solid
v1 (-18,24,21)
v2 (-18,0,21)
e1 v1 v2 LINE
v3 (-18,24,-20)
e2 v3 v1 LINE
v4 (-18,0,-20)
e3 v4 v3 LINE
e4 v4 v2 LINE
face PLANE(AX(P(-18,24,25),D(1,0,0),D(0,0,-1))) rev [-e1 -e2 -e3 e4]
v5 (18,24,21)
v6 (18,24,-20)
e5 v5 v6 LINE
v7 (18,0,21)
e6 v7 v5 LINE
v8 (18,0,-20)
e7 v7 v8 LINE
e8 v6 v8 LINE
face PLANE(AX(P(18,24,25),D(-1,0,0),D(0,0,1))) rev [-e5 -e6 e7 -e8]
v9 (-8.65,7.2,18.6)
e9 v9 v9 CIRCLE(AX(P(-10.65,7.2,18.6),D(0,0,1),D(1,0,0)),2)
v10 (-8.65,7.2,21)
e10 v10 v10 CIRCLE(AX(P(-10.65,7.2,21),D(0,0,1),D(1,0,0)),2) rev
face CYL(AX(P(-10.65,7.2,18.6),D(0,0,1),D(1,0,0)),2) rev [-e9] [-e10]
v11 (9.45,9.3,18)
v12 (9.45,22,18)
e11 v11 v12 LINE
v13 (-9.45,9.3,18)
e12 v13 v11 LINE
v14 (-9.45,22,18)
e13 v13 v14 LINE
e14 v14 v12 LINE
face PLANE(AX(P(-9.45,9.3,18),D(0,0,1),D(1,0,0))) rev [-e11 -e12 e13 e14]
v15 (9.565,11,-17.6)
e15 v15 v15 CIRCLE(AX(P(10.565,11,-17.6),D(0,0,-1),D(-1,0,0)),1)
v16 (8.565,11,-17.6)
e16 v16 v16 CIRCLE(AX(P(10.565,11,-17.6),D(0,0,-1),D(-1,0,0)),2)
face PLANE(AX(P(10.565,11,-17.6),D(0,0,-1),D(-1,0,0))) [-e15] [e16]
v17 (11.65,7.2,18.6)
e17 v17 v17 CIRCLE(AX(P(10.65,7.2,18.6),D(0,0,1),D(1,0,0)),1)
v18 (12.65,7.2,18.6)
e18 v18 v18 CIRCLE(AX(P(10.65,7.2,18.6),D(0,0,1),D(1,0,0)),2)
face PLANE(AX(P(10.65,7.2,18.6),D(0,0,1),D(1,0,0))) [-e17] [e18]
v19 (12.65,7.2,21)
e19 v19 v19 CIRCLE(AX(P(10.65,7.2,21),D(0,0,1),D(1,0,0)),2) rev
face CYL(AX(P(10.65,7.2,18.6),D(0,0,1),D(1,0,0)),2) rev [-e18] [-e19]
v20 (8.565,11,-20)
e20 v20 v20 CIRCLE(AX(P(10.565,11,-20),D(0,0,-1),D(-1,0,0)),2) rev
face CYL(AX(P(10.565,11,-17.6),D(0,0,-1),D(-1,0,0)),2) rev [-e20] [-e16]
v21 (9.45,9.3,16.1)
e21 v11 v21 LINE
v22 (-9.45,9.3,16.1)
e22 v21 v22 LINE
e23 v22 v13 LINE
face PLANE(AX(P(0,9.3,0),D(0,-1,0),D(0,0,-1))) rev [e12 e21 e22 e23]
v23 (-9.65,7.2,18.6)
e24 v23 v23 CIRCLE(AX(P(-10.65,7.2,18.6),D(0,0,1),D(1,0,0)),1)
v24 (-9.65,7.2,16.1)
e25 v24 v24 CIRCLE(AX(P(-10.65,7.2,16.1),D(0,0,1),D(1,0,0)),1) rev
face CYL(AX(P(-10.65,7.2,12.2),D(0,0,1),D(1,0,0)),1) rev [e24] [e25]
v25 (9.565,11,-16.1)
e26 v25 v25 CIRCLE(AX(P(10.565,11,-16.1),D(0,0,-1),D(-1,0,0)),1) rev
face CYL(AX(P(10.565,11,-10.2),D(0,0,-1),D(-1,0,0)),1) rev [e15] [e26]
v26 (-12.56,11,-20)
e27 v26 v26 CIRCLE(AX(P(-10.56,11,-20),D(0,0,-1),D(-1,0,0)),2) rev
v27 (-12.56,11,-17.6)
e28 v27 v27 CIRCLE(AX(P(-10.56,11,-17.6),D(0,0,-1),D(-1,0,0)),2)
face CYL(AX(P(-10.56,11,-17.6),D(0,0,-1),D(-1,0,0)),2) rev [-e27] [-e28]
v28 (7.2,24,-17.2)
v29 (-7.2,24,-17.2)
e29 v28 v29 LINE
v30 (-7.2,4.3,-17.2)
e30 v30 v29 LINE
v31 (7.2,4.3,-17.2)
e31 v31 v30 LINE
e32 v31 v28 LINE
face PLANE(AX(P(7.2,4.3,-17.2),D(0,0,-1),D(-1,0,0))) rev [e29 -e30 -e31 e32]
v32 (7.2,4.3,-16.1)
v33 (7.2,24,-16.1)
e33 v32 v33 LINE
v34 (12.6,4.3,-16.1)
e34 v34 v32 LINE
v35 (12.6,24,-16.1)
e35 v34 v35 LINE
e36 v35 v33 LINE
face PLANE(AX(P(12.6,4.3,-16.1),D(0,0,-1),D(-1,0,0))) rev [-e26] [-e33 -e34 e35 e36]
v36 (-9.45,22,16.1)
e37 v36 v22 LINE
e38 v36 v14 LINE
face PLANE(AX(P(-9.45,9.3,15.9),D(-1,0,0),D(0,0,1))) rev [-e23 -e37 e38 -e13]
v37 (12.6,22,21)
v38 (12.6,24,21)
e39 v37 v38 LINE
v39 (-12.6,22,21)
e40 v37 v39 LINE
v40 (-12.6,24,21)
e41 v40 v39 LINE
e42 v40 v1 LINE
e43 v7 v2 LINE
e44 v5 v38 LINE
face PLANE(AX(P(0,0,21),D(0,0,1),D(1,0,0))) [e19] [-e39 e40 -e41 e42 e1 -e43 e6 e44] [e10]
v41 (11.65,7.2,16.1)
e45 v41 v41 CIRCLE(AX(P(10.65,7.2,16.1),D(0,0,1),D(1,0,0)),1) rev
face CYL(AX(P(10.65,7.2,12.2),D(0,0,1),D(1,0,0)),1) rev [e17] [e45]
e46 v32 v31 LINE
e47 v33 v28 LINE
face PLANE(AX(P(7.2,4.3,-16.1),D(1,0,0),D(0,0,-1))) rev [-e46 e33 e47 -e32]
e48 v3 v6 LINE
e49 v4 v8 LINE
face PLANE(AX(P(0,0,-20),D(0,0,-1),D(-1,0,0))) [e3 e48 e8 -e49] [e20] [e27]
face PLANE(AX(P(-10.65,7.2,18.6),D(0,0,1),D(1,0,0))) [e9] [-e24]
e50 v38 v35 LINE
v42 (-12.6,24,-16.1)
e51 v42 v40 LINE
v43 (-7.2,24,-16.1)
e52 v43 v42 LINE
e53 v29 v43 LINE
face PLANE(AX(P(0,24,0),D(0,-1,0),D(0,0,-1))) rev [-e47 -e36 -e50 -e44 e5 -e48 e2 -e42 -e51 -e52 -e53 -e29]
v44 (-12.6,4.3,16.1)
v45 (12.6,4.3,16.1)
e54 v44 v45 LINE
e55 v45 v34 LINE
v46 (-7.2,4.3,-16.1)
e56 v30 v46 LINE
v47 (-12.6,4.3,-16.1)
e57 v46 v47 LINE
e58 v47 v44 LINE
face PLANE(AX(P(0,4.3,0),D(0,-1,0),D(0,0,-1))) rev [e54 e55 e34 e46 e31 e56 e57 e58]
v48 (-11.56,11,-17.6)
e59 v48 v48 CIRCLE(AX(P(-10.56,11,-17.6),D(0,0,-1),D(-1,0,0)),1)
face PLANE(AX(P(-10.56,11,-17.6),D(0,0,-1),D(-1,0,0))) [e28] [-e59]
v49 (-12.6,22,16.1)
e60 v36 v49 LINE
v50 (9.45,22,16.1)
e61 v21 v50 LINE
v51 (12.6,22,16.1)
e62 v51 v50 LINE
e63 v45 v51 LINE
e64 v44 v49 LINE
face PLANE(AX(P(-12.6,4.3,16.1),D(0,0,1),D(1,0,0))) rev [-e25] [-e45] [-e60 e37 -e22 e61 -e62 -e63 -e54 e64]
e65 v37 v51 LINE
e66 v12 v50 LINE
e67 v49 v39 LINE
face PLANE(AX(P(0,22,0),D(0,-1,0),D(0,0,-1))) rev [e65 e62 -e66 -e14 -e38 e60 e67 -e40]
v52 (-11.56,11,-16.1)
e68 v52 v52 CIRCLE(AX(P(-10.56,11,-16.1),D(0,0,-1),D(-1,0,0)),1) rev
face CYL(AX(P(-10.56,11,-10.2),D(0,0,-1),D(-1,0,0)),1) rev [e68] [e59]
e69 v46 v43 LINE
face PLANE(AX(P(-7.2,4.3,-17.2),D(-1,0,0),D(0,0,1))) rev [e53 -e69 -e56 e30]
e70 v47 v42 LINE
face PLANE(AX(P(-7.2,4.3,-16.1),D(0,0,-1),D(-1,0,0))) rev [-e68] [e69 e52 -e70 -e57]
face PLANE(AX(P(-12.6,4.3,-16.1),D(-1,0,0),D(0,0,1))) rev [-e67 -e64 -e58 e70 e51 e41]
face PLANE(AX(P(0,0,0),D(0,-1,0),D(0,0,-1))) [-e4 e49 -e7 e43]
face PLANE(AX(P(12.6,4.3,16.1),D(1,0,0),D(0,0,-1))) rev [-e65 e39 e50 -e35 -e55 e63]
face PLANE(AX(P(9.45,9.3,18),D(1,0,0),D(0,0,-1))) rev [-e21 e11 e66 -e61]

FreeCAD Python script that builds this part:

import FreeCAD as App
import Part
import Sketcher

V = App.Vector
Q = App.Units.Quantity

doc = App.newDocument("Part")
params = doc.addObject("Spreadsheet::Sheet", "Params")
for row, (alias, value) in enumerate([
    ("sketch1_width", "36 mm"),
    ("sketch1_height", "50 mm"),
    ("pad1_length", "24 mm"),
    ("sketch2_width", "24.8 mm"),
    ("sketch2_height", "31.8 mm"),
    ("pocket1_length", "19.7 mm"),
    ("sketch3_width", "14 mm"),
    ("sketch3_height", "2.2 mm"),
    ("pocket2_length", "19.7 mm"),
    ("sketch4_width", "18.5 mm"),
    ("sketch4_height", "3.8 mm"),
    ("pocket3_length", "14.7 mm"),
    ("sketch5_width", "24.8 mm"),
    ("pocket4_length", "2 mm"),
    ("sketch6_diameter", "4 mm"),
    ("pocket5_length", "6.4 mm"),
    ("sketch7_diameter", "2 mm"),
    ("pocket6_length", "6.4 mm"),
    ("sketch8_diameter", "4 mm"),
    ("pocket7_length", "7.4 mm"),
    ("sketch9_diameter", "2 mm"),
    ("pocket8_length", "7.4 mm"),
    ("pocket9_length", "4 mm"),
    ("pocket10_length", "5 mm"),
    ("sketch12_width", "25.2 mm"),
    ("sketch12_width2", "5.4 mm"),
    ("sketch12_height", "32.2 mm"),
    ("sketch12_height2", "1.1 mm"),
    ("pocket11_length", "19.7 mm"),
    ("sketch13_width", "18.9 mm"),
    ("sketch13_height", "2.1 mm"),
    ("pocket12_length", "12.7 mm"),
    ("sketch14_width", "25.2 mm"),
    ("pocket13_length", "2 mm"),
], start=1):
    params.set(f"A{row}", alias)
    params.set(f"B{row}", "=" + value)
    params.setAlias(f"B{row}", alias)

body = doc.addObject("PartDesign::Body", "Body")

# Sketch on XZ plane
sketch1 = body.newObject("Sketcher::SketchObject", "Sketch")
sketch1.AttachmentSupport = (doc.getObject("XZ_Plane"), [""])
sketch1.MapMode = "FlatFace"
sketch1.addGeometry(Part.LineSegment(V(-18, -25, 0), V(-18, 25, 0)), False)
sketch1.addGeometry(Part.LineSegment(V(-18, 25, 0), V(18, 25, 0)), False)
sketch1.addGeometry(Part.LineSegment(V(18, 25, 0), V(18, -25, 0)), False)
sketch1.addGeometry(Part.LineSegment(V(18, -25, 0), V(-18, -25, 0)), False)
sketch1.addConstraint(Sketcher.Constraint("Coincident", 0, 2, 1, 1))
sketch1.addConstraint(Sketcher.Constraint("Coincident", 1, 2, 2, 1))
sketch1.addConstraint(Sketcher.Constraint("Coincident", 2, 2, 3, 1))
sketch1.addConstraint(Sketcher.Constraint("Coincident", 3, 2, 0, 1))
sketch1.addConstraint(Sketcher.Constraint("Vertical", 0))
sketch1.addConstraint(Sketcher.Constraint("Horizontal", 1))
sketch1.addConstraint(Sketcher.Constraint("Vertical", 2))
sketch1.addConstraint(Sketcher.Constraint("Horizontal", 3))
sketch1.addConstraint(Sketcher.Constraint("Symmetric", 0, 2, 2, 2, -1, 1))
sketch1.addConstraint(Sketcher.Constraint("DistanceX", 1, 1, 1, 2, Q("36 mm")))
sketch1.addConstraint(Sketcher.Constraint("DistanceY", 0, 1, 0, 2, Q("50 mm")))
sketch1.setExpression("Constraints[9]", "Params.sketch1_width")
sketch1.setExpression("Constraints[10]", "Params.sketch1_height")
pad1 = body.newObject("PartDesign::Pad", "Pad")
pad1.Profile = sketch1
pad1.setExpression("Length", "Params.pad1_length")
pad1.Reversed = True

# Sketch on XZ plane
sketch2 = body.newObject("Sketcher::SketchObject", "Sketch001")
sketch2.AttachmentSupport = (doc.getObject("XZ_Plane"), [""])
sketch2.MapMode = "FlatFace"
sketch2.AttachmentOffset = App.Placement(V(0, 0, -24), App.Rotation())
sketch2.addGeometry(Part.LineSegment(V(-12, -16, 0), V(-12, 16, 0)), False)
sketch2.addGeometry(Part.LineSegment(V(-12, 16, 0), V(12, 16, 0)), False)
sketch2.addGeometry(Part.LineSegment(V(12, 16, 0), V(12, -16, 0)), False)
sketch2.addGeometry(Part.LineSegment(V(12, -16, 0), V(-12, -16, 0)), False)
sketch2.addConstraint(Sketcher.Constraint("Coincident", 0, 2, 1, 1))
sketch2.addConstraint(Sketcher.Constraint("Coincident", 1, 2, 2, 1))
sketch2.addConstraint(Sketcher.Constraint("Coincident", 2, 2, 3, 1))
sketch2.addConstraint(Sketcher.Constraint("Coincident", 3, 2, 0, 1))
sketch2.addConstraint(Sketcher.Constraint("Vertical", 0))
sketch2.addConstraint(Sketcher.Constraint("Horizontal", 1))
sketch2.addConstraint(Sketcher.Constraint("Vertical", 2))
sketch2.addConstraint(Sketcher.Constraint("Horizontal", 3))
sketch2.addConstraint(Sketcher.Constraint("Symmetric", 0, 2, 2, 2, -1, 1))
sketch2.addConstraint(Sketcher.Constraint("DistanceX", 1, 1, 1, 2, Q("24.8 mm")))
sketch2.addConstraint(Sketcher.Constraint("DistanceY", 0, 1, 0, 2, Q("31.8 mm")))
sketch2.setExpression("Constraints[9]", "Params.sketch2_width")
sketch2.setExpression("Constraints[10]", "Params.sketch2_height")
pocket1 = body.newObject("PartDesign::Pocket", "Pocket")
pocket1.Profile = sketch2
pocket1.setExpression("Length", "Params.pocket1_length")
pocket1.Reversed = True

# Sketch on XZ plane
sketch3 = body.newObject("Sketcher::SketchObject", "Sketch002")
sketch3.AttachmentSupport = (doc.getObject("XZ_Plane"), [""])
sketch3.MapMode = "FlatFace"
sketch3.AttachmentOffset = App.Placement(V(0, 0, -24), App.Rotation())
sketch3.addGeometry(Part.LineSegment(V(-7, -17, 0), V(-7, -14.8, 0)), False)
sketch3.addGeometry(Part.LineSegment(V(-7, -14.8, 0), V(7, -14.8, 0)), False)
sketch3.addGeometry(Part.LineSegment(V(7, -14.8, 0), V(7, -17, 0)), False)
sketch3.addGeometry(Part.LineSegment(V(7, -17, 0), V(-7, -17, 0)), False)
sketch3.addConstraint(Sketcher.Constraint("Coincident", 0, 2, 1, 1))
sketch3.addConstraint(Sketcher.Constraint("Coincident", 1, 2, 2, 1))
sketch3.addConstraint(Sketcher.Constraint("Coincident", 2, 2, 3, 1))
sketch3.addConstraint(Sketcher.Constraint("Coincident", 3, 2, 0, 1))
sketch3.addConstraint(Sketcher.Constraint("Vertical", 0))
sketch3.addConstraint(Sketcher.Constraint("Horizontal", 1))
sketch3.addConstraint(Sketcher.Constraint("Vertical", 2))
sketch3.addConstraint(Sketcher.Constraint("Horizontal", 3))
sketch3.addConstraint(Sketcher.Constraint("DistanceX", 1, 1, 1, 2, Q("14 mm")))
sketch3.addConstraint(Sketcher.Constraint("DistanceY", 0, 1, 0, 2, Q("2.2 mm")))
sketch3.addConstraint(Sketcher.Constraint("DistanceX", 0, 2, -1, 1, Q("7 mm")))
sketch3.addConstraint(Sketcher.Constraint("DistanceY", 2, 2, -1, 1, Q("17 mm")))
sketch3.setExpression("Constraints[8]", "Params.sketch3_width")
sketch3.setExpression("Constraints[9]", "Params.sketch3_height")
pocket2 = body.newObject("PartDesign::Pocket", "Pocket001")
pocket2.Profile = sketch3
pocket2.setExpression("Length", "Params.pocket2_length")
pocket2.Reversed = True

# Sketch on XZ plane
sketch4 = body.newObject("Sketcher::SketchObject", "Sketch003")
sketch4.AttachmentSupport = (doc.getObject("XZ_Plane"), [""])
sketch4.MapMode = "FlatFace"
sketch4.AttachmentOffset = App.Placement(V(0, 0, -24), App.Rotation())
sketch4.addGeometry(Part.LineSegment(V(-9.2, 14, 0), V(-9.2, 17.8, 0)), False)
sketch4.addGeometry(Part.LineSegment(V(-9.2, 17.8, 0), V(9.2, 17.8, 0)), False)
sketch4.addGeometry(Part.LineSegment(V(9.2, 17.8, 0), V(9.2, 14, 0)), False)
sketch4.addGeometry(Part.LineSegment(V(9.2, 14, 0), V(-9.2, 14, 0)), False)
sketch4.addConstraint(Sketcher.Constraint("Coincident", 0, 2, 1, 1))
sketch4.addConstraint(Sketcher.Constraint("Coincident", 1, 2, 2, 1))
sketch4.addConstraint(Sketcher.Constraint("Coincident", 2, 2, 3, 1))
sketch4.addConstraint(Sketcher.Constraint("Coincident", 3, 2, 0, 1))
sketch4.addConstraint(Sketcher.Constraint("Vertical", 0))
sketch4.addConstraint(Sketcher.Constraint("Horizontal", 1))
sketch4.addConstraint(Sketcher.Constraint("Vertical", 2))
sketch4.addConstraint(Sketcher.Constraint("Horizontal", 3))
sketch4.addConstraint(Sketcher.Constraint("DistanceX", 1, 1, 1, 2, Q("18.5 mm")))
sketch4.addConstraint(Sketcher.Constraint("DistanceY", 0, 1, 0, 2, Q("3.8 mm")))
sketch4.addConstraint(Sketcher.Constraint("DistanceY", -1, 1, 2, 2, Q("14 mm")))
sketch4.addConstraint(Sketcher.Constraint("DistanceX", 0, 2, -1, 1, Q("9.25 mm")))
sketch4.setExpression("Constraints[8]", "Params.sketch4_width")
sketch4.setExpression("Constraints[9]", "Params.sketch4_height")
pocket3 = body.newObject("PartDesign::Pocket", "Pocket002")
pocket3.Profile = sketch4
pocket3.setExpression("Length", "Params.pocket3_length")
pocket3.Reversed = True

# Sketch on XZ plane
sketch5 = body.newObject("Sketcher::SketchObject", "Sketch004")
sketch5.AttachmentSupport = (doc.getObject("XZ_Plane"), [""])
sketch5.MapMode = "FlatFace"
sketch5.AttachmentOffset = App.Placement(V(0, 0, -24), App.Rotation())
sketch5.addGeometry(Part.LineSegment(V(-12, 13, 0), V(-12, 37, 0)), False)
sketch5.addGeometry(Part.LineSegment(V(-12, 37, 0), V(12, 37, 0)), False)
sketch5.addGeometry(Part.LineSegment(V(12, 37, 0), V(12, 13, 0)), False)
sketch5.addGeometry(Part.LineSegment(V(12, 13, 0), V(-12, 13, 0)), False)
sketch5.addConstraint(Sketcher.Constraint("Coincident", 0, 2, 1, 1))
sketch5.addConstraint(Sketcher.Constraint("Coincident", 1, 2, 2, 1))
sketch5.addConstraint(Sketcher.Constraint("Coincident", 2, 2, 3, 1))
sketch5.addConstraint(Sketcher.Constraint("Coincident", 3, 2, 0, 1))
sketch5.addConstraint(Sketcher.Constraint("Vertical", 0))
sketch5.addConstraint(Sketcher.Constraint("Horizontal", 1))
sketch5.addConstraint(Sketcher.Constraint("Vertical", 2))
sketch5.addConstraint(Sketcher.Constraint("Horizontal", 3))
sketch5.addConstraint(Sketcher.Constraint("DistanceX", 1, 1, 1, 2, Q("24.8 mm")))
sketch5.addConstraint(Sketcher.Constraint("DistanceX", 0, 2, -1, 1, Q("12.4 mm")))
sketch5.addConstraint(Sketcher.Constraint("DistanceY", 0, 1, 0, 2, Q("24.280407 mm")))
sketch5.addConstraint(Sketcher.Constraint("DistanceY", -1, 1, 0, 2, Q("37.140204 mm")))
sketch5.setExpression("Constraints[8]", "Params.sketch5_width")
pocket4 = body.newObject("PartDesign::Pocket", "Pocket003")
pocket4.Profile = sketch5
pocket4.setExpression("Length", "Params.pocket4_length")
pocket4.Reversed = True

# Sketch on XY plane
sketch6 = body.newObject("Sketcher::SketchObject", "Sketch005")
sketch6.AttachmentSupport = (doc.getObject("XY_Plane"), [""])
sketch6.MapMode = "FlatFace"
sketch6.AttachmentOffset = App.Placement(V(0, 0, 25), App.Rotation())
sketch6.addGeometry(Part.Circle(V(10.7, 7.2, 0), V(0, 0, 1), 2), False)
sketch6.addGeometry(Part.Circle(V(-10.7, 7.2, 0), V(0, 0, 1), 2), False)
sketch6.addConstraint(Sketcher.Constraint("Equal", 0, 1))
sketch6.addConstraint(Sketcher.Constraint("Symmetric", 0, 3, 1, 3, -2))
sketch6.addConstraint(Sketcher.Constraint("Diameter", 0, Q("4 mm")))
sketch6.addConstraint(Sketcher.Constraint("DistanceY", -1, 1, 0, 3, Q("7.2 mm")))
sketch6.addConstraint(Sketcher.Constraint("DistanceX", 1, 3, 0, 3, Q("21.3 mm")))
sketch6.setExpression("Constraints[2]", "Params.sketch6_diameter")
pocket5 = body.newObject("PartDesign::Pocket", "Pocket004")
pocket5.Profile = sketch6
pocket5.setExpression("Length", "Params.pocket5_length")

# Sketch on XY plane
sketch7 = body.newObject("Sketcher::SketchObject", "Sketch006")
sketch7.AttachmentSupport = (doc.getObject("XY_Plane"), [""])
sketch7.MapMode = "FlatFace"
sketch7.AttachmentOffset = App.Placement(V(0, 0, 18.6), App.Rotation())
sketch7.addGeometry(Part.Circle(V(10.7, 7.2, 0), V(0, 0, 1), 1), False)
sketch7.addGeometry(Part.Circle(V(-10.7, 7.2, 0), V(0, 0, 1), 1), False)
sketch7.addConstraint(Sketcher.Constraint("Equal", 0, 1))
sketch7.addConstraint(Sketcher.Constraint("Symmetric", 0, 3, 1, 3, -2))
sketch7.addConstraint(Sketcher.Constraint("Diameter", 0, Q("2 mm")))
sketch7.addConstraint(Sketcher.Constraint("DistanceY", -1, 1, 0, 3, Q("7.2 mm")))
sketch7.addConstraint(Sketcher.Constraint("DistanceX", 1, 3, 0, 3, Q("21.3 mm")))
sketch7.setExpression("Constraints[2]", "Params.sketch7_diameter")
pocket6 = body.newObject("PartDesign::Pocket", "Pocket005")
pocket6.Profile = sketch7
pocket6.setExpression("Length", "Params.pocket6_length")

# Sketch on XY plane
sketch8 = body.newObject("Sketcher::SketchObject", "Sketch007")
sketch8.AttachmentSupport = (doc.getObject("XY_Plane"), [""])
sketch8.MapMode = "FlatFace"
sketch8.AttachmentOffset = App.Placement(V(0, 0, -25), App.Rotation())
sketch8.addGeometry(Part.Circle(V(10.6, 11, 0), V(0, 0, 1), 2), False)
sketch8.addGeometry(Part.Circle(V(-10.6, 11, 0), V(0, 0, 1), 2), False)
sketch8.addConstraint(Sketcher.Constraint("Equal", 0, 1))
sketch8.addConstraint(Sketcher.Constraint("Horizontal", 0, 3, 1, 3))
sketch8.addConstraint(Sketcher.Constraint("Diameter", 0, Q("4 mm")))
sketch8.addConstraint(Sketcher.Constraint("DistanceY", -1, 1, 0, 3, Q("11 mm")))
sketch8.addConstraint(Sketcher.Constraint("DistanceX", 1, 3, -1, 1, Q("10.56 mm")))
sketch8.addConstraint(Sketcher.Constraint("DistanceX", -1, 1, 0, 3, Q("10.565 mm")))
sketch8.setExpression("Constraints[2]", "Params.sketch8_diameter")
pocket7 = body.newObject("PartDesign::Pocket", "Pocket006")
pocket7.Profile = sketch8
pocket7.setExpression("Length", "Params.pocket7_length")
pocket7.Reversed = True

# Sketch on XY plane
sketch9 = body.newObject("Sketcher::SketchObject", "Sketch008")
sketch9.AttachmentSupport = (doc.getObject("XY_Plane"), [""])
sketch9.MapMode = "FlatFace"
sketch9.AttachmentOffset = App.Placement(V(0, 0, -17.6), App.Rotation())
sketch9.addGeometry(Part.Circle(V(-10.6, 11, 0), V(0, 0, 1), 1), False)
sketch9.addGeometry(Part.Circle(V(10.6, 11, 0), V(0, 0, 1), 1), False)
sketch9.addConstraint(Sketcher.Constraint("Equal", 0, 1))
sketch9.addConstraint(Sketcher.Constraint("Horizontal", 0, 3, 1, 3))
sketch9.addConstraint(Sketcher.Constraint("Diameter", 0, Q("2 mm")))
sketch9.addConstraint(Sketcher.Constraint("DistanceY", -1, 1, 0, 3, Q("11 mm")))
sketch9.addConstraint(Sketcher.Constraint("DistanceX", 0, 3, -1, 1, Q("10.56 mm")))
sketch9.addConstraint(Sketcher.Constraint("DistanceX", -1, 1, 1, 3, Q("10.565 mm")))
sketch9.setExpression("Constraints[2]", "Params.sketch9_diameter")
pocket8 = body.newObject("PartDesign::Pocket", "Pocket007")
pocket8.Profile = sketch9
pocket8.setExpression("Length", "Params.pocket8_length")
pocket8.Reversed = True

# Sketch on XY plane
sketch10 = body.newObject("Sketcher::SketchObject", "Sketch009")
sketch10.AttachmentSupport = (doc.getObject("XY_Plane"), [""])
sketch10.MapMode = "FlatFace"
sketch10.AttachmentOffset = App.Placement(V(0, 0, 25), App.Rotation())
sketch10.addGeometry(Part.LineSegment(V(-27, 33, 0), V(-27, -9, 0)), False)
sketch10.addGeometry(Part.LineSegment(V(-27, -9, 0), V(21, -9, 0)), False)
sketch10.addGeometry(Part.LineSegment(V(21, -9, 0), V(21, 33, 0)), False)
sketch10.addGeometry(Part.LineSegment(V(21, 33, 0), V(-27, 33, 0)), False)
sketch10.addConstraint(Sketcher.Constraint("Coincident", 0, 2, 1, 1))
sketch10.addConstraint(Sketcher.Constraint("Coincident", 1, 2, 2, 1))
sketch10.addConstraint(Sketcher.Constraint("Coincident", 2, 2, 3, 1))
sketch10.addConstraint(Sketcher.Constraint("Coincident", 3, 2, 0, 1))
sketch10.addConstraint(Sketcher.Constraint("Vertical", 0))
sketch10.addConstraint(Sketcher.Constraint("Horizontal", 1))
sketch10.addConstraint(Sketcher.Constraint("Vertical", 2))
sketch10.addConstraint(Sketcher.Constraint("Horizontal", 3))
sketch10.addConstraint(Sketcher.Constraint("DistanceX", 1, 1, 1, 2, Q("47.693249 mm")))
sketch10.addConstraint(Sketcher.Constraint("DistanceY", 0, 2, 0, 1, Q("41.943522 mm")))
sketch10.addConstraint(Sketcher.Constraint("DistanceY", -1, 1, 2, 2, Q("33.365109 mm")))
sketch10.addConstraint(Sketcher.Constraint("DistanceX", 0, 2, -1, 1, Q("26.500345 mm")))
pocket9 = body.newObject("PartDesign::Pocket", "Pocket008")
pocket9.Profile = sketch10
pocket9.setExpression("Length", "Params.pocket9_length")

# Sketch on XY plane
sketch11 = body.newObject("Sketcher::SketchObject", "Sketch010")
sketch11.AttachmentSupport = (doc.getObject("XY_Plane"), [""])
sketch11.MapMode = "FlatFace"
sketch11.AttachmentOffset = App.Placement(V(0, 0, -25), App.Rotation())
sketch11.addGeometry(Part.LineSegment(V(34, 32, 0), V(34, -7, 0)), False)
sketch11.addGeometry(Part.LineSegment(V(34, -7, 0), V(-35, -7, 0)), False)
sketch11.addGeometry(Part.LineSegment(V(-35, -7, 0), V(-35, 32, 0)), False)
sketch11.addGeometry(Part.LineSegment(V(-35, 32, 0), V(34, 32, 0)), False)
sketch11.addConstraint(Sketcher.Constraint("Coincident", 0, 2, 1, 1))
sketch11.addConstraint(Sketcher.Constraint("Coincident", 1, 2, 2, 1))
sketch11.addConstraint(Sketcher.Constraint("Coincident", 2, 2, 3, 1))
sketch11.addConstraint(Sketcher.Constraint("Coincident", 3, 2, 0, 1))
sketch11.addConstraint(Sketcher.Constraint("Vertical", 0))
sketch11.addConstraint(Sketcher.Constraint("Horizontal", 1))
sketch11.addConstraint(Sketcher.Constraint("Vertical", 2))
sketch11.addConstraint(Sketcher.Constraint("Horizontal", 3))
sketch11.addConstraint(Sketcher.Constraint("DistanceY", 0, 2, 0, 1, Q("39.42222 mm")))
sketch11.addConstraint(Sketcher.Constraint("DistanceY", 0, 2, -1, 1, Q("7.1228 mm")))
sketch11.addConstraint(Sketcher.Constraint("DistanceX", 1, 2, 1, 1, Q("69.166934 mm")))
sketch11.addConstraint(Sketcher.Constraint("DistanceX", -1, 1, 0, 2, Q("33.724641 mm")))
pocket10 = body.newObject("PartDesign::Pocket", "Pocket009")
pocket10.Profile = sketch11
pocket10.setExpression("Length", "Params.pocket10_length")
pocket10.Reversed = True

# Sketch on XZ plane
sketch12 = body.newObject("Sketcher::SketchObject", "Sketch011")
sketch12.AttachmentSupport = (doc.getObject("XZ_Plane"), [""])
sketch12.MapMode = "FlatFace"
sketch12.AttachmentOffset = App.Placement(V(0, 0, -24), App.Rotation())
sketch12.addGeometry(Part.LineSegment(V(-12.6, 16.1, 0), V(12.6, 16.1, 0)), False)
sketch12.addGeometry(Part.LineSegment(V(12.6, 16.1, 0), V(12.6, -16.1, 0)), False)
sketch12.addGeometry(Part.LineSegment(V(12.6, -16.1, 0), V(7.2, -16.1, 0)), False)
sketch12.addGeometry(Part.LineSegment(V(7.2, -16.1, 0), V(7.2, -17.2, 0)), False)
sketch12.addGeometry(Part.LineSegment(V(7.2, -17.2, 0), V(-7.2, -17.2, 0)), False)
sketch12.addGeometry(Part.LineSegment(V(-7.2, -17.2, 0), V(-7.2, -16.1, 0)), False)
sketch12.addGeometry(Part.LineSegment(V(-7.2, -16.1, 0), V(-12.6, -16.1, 0)), False)
sketch12.addGeometry(Part.LineSegment(V(-12.6, -16.1, 0), V(-12.6, 16.1, 0)), False)
sketch12.addConstraint(Sketcher.Constraint("Coincident", 0, 2, 1, 1))
sketch12.addConstraint(Sketcher.Constraint("Coincident", 1, 2, 2, 1))
sketch12.addConstraint(Sketcher.Constraint("Coincident", 2, 2, 3, 1))
sketch12.addConstraint(Sketcher.Constraint("Coincident", 3, 2, 4, 1))
sketch12.addConstraint(Sketcher.Constraint("Coincident", 4, 2, 5, 1))
sketch12.addConstraint(Sketcher.Constraint("Coincident", 5, 2, 6, 1))
sketch12.addConstraint(Sketcher.Constraint("Coincident", 6, 2, 7, 1))
sketch12.addConstraint(Sketcher.Constraint("Coincident", 7, 2, 0, 1))
sketch12.addConstraint(Sketcher.Constraint("Horizontal", 0))
sketch12.addConstraint(Sketcher.Constraint("Vertical", 1))
sketch12.addConstraint(Sketcher.Constraint("Horizontal", 2))
sketch12.addConstraint(Sketcher.Constraint("Vertical", 3))
sketch12.addConstraint(Sketcher.Constraint("Horizontal", 4))
sketch12.addConstraint(Sketcher.Constraint("Vertical", 5))
sketch12.addConstraint(Sketcher.Constraint("Horizontal", 6))
sketch12.addConstraint(Sketcher.Constraint("Vertical", 7))
sketch12.addConstraint(Sketcher.Constraint("Symmetric", 0, 2, 6, 2, -1, 1))
sketch12.addConstraint(Sketcher.Constraint("Symmetric", 2, 2, 5, 2, -2))
sketch12.addConstraint(Sketcher.Constraint("DistanceX", 0, 1, 0, 2, Q("25.2 mm")))
sketch12.addConstraint(Sketcher.Constraint("DistanceX", 2, 2, 2, 1, Q("5.4 mm")))
sketch12.addConstraint(Sketcher.Constraint("DistanceY", 1, 2, 1, 1, Q("32.2 mm")))
sketch12.addConstraint(Sketcher.Constraint("DistanceY", 3, 2, 3, 1, Q("1.1 mm")))
sketch12.setExpression("Constraints[18]", "Params.sketch12_width")
sketch12.setExpression("Constraints[19]", "Params.sketch12_width2")
sketch12.setExpression("Constraints[20]", "Params.sketch12_height")
sketch12.setExpression("Constraints[21]", "Params.sketch12_height2")
pocket11 = body.newObject("PartDesign::Pocket", "Pocket010")
pocket11.Profile = sketch12
pocket11.setExpression("Length", "Params.pocket11_length")
pocket11.Reversed = True

# Sketch on XZ plane
sketch13 = body.newObject("Sketcher::SketchObject", "Sketch012")
sketch13.AttachmentSupport = (doc.getObject("XZ_Plane"), [""])
sketch13.MapMode = "FlatFace"
sketch13.AttachmentOffset = App.Placement(V(0, 0, -22), App.Rotation())
sketch13.addGeometry(Part.LineSegment(V(-9.4, 15.9, 0), V(-9.4, 18, 0)), False)
sketch13.addGeometry(Part.LineSegment(V(-9.4, 18, 0), V(9.4, 18, 0)), False)
sketch13.addGeometry(Part.LineSegment(V(9.4, 18, 0), V(9.4, 15.9, 0)), False)
sketch13.addGeometry(Part.LineSegment(V(9.4, 15.9, 0), V(-9.4, 15.9, 0)), False)
sketch13.addConstraint(Sketcher.Constraint("Coincident", 0, 2, 1, 1))
sketch13.addConstraint(Sketcher.Constraint("Coincident", 1, 2, 2, 1))
sketch13.addConstraint(Sketcher.Constraint("Coincident", 2, 2, 3, 1))
sketch13.addConstraint(Sketcher.Constraint("Coincident", 3, 2, 0, 1))
sketch13.addConstraint(Sketcher.Constraint("Vertical", 0))
sketch13.addConstraint(Sketcher.Constraint("Horizontal", 1))
sketch13.addConstraint(Sketcher.Constraint("Vertical", 2))
sketch13.addConstraint(Sketcher.Constraint("Horizontal", 3))
sketch13.addConstraint(Sketcher.Constraint("DistanceX", 1, 1, 1, 2, Q("18.9 mm")))
sketch13.addConstraint(Sketcher.Constraint("DistanceY", 0, 1, 0, 2, Q("2.1 mm")))
sketch13.addConstraint(Sketcher.Constraint("DistanceY", -1, 1, 0, 2, Q("18 mm")))
sketch13.addConstraint(Sketcher.Constraint("DistanceX", 0, 2, -1, 1, Q("9.45 mm")))
sketch13.setExpression("Constraints[8]", "Params.sketch13_width")
sketch13.setExpression("Constraints[9]", "Params.sketch13_height")
pocket12 = body.newObject("PartDesign::Pocket", "Pocket011")
pocket12.Profile = sketch13
pocket12.setExpression("Length", "Params.pocket12_length")
pocket12.Reversed = True

# Sketch on XZ plane
sketch14 = body.newObject("Sketcher::SketchObject", "Sketch013")
sketch14.AttachmentSupport = (doc.getObject("XZ_Plane"), [""])
sketch14.MapMode = "FlatFace"
sketch14.AttachmentOffset = App.Placement(V(0, 0, -24), App.Rotation())
sketch14.addGeometry(Part.LineSegment(V(-13, -16, 0), V(-13, 22, 0)), False)
sketch14.addGeometry(Part.LineSegment(V(-13, 22, 0), V(13, 22, 0)), False)
sketch14.addGeometry(Part.LineSegment(V(13, 22, 0), V(13, -16, 0)), False)
sketch14.addGeometry(Part.LineSegment(V(13, -16, 0), V(-13, -16, 0)), False)
sketch14.addConstraint(Sketcher.Constraint("Coincident", 0, 2, 1, 1))
sketch14.addConstraint(Sketcher.Constraint("Coincident", 1, 2, 2, 1))
sketch14.addConstraint(Sketcher.Constraint("Coincident", 2, 2, 3, 1))
sketch14.addConstraint(Sketcher.Constraint("Coincident", 3, 2, 0, 1))
sketch14.addConstraint(Sketcher.Constraint("Vertical", 0))
sketch14.addConstraint(Sketcher.Constraint("Horizontal", 1))
sketch14.addConstraint(Sketcher.Constraint("Vertical", 2))
sketch14.addConstraint(Sketcher.Constraint("Horizontal", 3))
sketch14.addConstraint(Sketcher.Constraint("DistanceX", 1, 1, 1, 2, Q("25.2 mm")))
sketch14.addConstraint(Sketcher.Constraint("DistanceX", 0, 2, -1, 1, Q("12.6 mm")))
sketch14.addConstraint(Sketcher.Constraint("DistanceY", 2, 2, -1, 1, Q("16.1 mm")))
sketch14.addConstraint(Sketcher.Constraint("DistanceY", 0, 1, 0, 2, Q("38.217614 mm")))
sketch14.setExpression("Constraints[8]", "Params.sketch14_width")
pocket13 = body.newObject("PartDesign::Pocket", "Pocket012")
pocket13.Profile = sketch14
pocket13.setExpression("Length", "Params.pocket13_length")
pocket13.Reversed = True

doc.recompute()
